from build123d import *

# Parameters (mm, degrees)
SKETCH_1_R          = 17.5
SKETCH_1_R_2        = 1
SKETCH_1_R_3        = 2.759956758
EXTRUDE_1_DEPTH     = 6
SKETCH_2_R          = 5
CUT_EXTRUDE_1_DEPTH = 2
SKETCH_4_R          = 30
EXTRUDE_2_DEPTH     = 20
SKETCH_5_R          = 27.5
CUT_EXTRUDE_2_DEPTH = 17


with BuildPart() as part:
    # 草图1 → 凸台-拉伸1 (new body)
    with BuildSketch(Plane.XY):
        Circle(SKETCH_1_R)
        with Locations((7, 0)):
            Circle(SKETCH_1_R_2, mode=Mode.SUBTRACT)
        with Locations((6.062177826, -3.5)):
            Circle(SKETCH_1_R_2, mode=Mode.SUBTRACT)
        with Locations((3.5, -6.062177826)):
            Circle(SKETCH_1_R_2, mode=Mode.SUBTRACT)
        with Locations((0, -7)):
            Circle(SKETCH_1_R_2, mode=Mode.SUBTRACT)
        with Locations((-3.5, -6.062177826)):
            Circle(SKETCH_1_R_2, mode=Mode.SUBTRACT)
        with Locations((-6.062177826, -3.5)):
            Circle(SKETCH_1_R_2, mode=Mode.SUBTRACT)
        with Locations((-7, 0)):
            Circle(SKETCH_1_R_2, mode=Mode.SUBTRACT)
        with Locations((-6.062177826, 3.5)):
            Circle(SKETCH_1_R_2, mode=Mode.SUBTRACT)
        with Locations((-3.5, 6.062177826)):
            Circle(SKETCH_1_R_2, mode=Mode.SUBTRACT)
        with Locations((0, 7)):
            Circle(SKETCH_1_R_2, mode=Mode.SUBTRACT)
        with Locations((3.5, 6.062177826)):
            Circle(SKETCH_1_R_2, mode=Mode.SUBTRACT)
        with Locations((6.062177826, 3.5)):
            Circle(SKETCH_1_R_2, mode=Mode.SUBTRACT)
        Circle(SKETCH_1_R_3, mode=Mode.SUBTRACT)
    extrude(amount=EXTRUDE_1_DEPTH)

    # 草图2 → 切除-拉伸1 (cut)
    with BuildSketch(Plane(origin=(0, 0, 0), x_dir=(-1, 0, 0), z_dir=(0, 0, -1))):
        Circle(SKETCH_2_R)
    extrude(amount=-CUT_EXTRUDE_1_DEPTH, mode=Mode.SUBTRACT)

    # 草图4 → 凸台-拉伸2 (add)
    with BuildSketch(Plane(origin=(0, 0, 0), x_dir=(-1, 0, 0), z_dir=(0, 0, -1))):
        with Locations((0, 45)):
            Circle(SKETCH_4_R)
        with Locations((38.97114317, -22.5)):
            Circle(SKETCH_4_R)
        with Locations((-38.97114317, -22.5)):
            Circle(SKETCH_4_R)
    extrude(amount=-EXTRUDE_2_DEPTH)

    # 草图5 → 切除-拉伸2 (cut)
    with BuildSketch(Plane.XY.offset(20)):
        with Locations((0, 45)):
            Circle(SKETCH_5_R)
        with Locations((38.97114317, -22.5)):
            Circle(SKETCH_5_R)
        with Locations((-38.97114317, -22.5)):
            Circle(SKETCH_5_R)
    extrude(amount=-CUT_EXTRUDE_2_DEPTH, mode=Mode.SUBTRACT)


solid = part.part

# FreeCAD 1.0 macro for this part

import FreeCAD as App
import Part
import Sketcher

V = App.Vector
Q = App.Units.Quantity

doc = App.newDocument("Part")
body = doc.addObject("PartDesign::Body", "Body")

# Sketch on XY plane
sketch1 = body.newObject("Sketcher::SketchObject", "Sketch")
sketch1.AttachmentSupport = (doc.getObject("XY_Plane"), [""])
sketch1.MapMode = "FlatFace"
sketch1.addGeometry([
    Part.Circle(V(0, 0, 0), V(0, 0, 1), 17.5),  # 0
    Part.Circle(V(-3.5, -6.1, 0), V(0, 0, 1), 1),  # 1
    Part.Circle(V(-6.1, -3.5, 0), V(0, 0, 1), 1),  # 2
    Part.Circle(V(-7, 0, 0), V(0, 0, 1), 1),  # 3
    Part.Circle(V(0, -7, 0), V(0, 0, 1), 1),  # 4
    Part.Circle(V(3.5, -6.1, 0), V(0, 0, 1), 1),  # 5
    Part.Circle(V(0, 0, 0), V(0, 0, 1), 2.8),  # 6
    Part.Circle(V(6.1, -3.5, 0), V(0, 0, 1), 1),  # 7
    Part.Circle(V(7, 0, 0), V(0, 0, 1), 1),  # 8
    Part.Circle(V(-6.1, 3.5, 0), V(0, 0, 1), 1),  # 9
    Part.Circle(V(-3.5, 6.1, 0), V(0, 0, 1), 1),  # 10
    Part.Circle(V(6.1, 3.5, 0), V(0, 0, 1), 1),  # 11
    Part.Circle(V(0, 7, 0), V(0, 0, 1), 1),  # 12
    Part.Circle(V(3.5, 6.1, 0), V(0, 0, 1), 1),  # 13
], False)
sketch1.addConstraint([
    Sketcher.Constraint("Coincident", 0, 3, -1, 1),
    Sketcher.Constraint("Coincident", 6, 3, -1, 1),
    Sketcher.Constraint("Equal", 1, 2),
    Sketcher.Constraint("Equal", 2, 3),
    Sketcher.Constraint("Equal", 3, 4),
    Sketcher.Constraint("Equal", 4, 5),
    Sketcher.Constraint("Equal", 5, 7),
    Sketcher.Constraint("Equal", 7, 8),
    Sketcher.Constraint("Equal", 8, 9),
    Sketcher.Constraint("Equal", 9, 10),
    Sketcher.Constraint("Equal", 10, 11),
    Sketcher.Constraint("Equal", 11, 12),
    Sketcher.Constraint("Equal", 12, 13),
    Sketcher.Constraint("Symmetric", 3, 3, 8, 3, -1, 1),
    Sketcher.Constraint("Symmetric", 7, 3, 9, 3, -1, 1),
    Sketcher.Constraint("Symmetric", 5, 3, 10, 3, -1, 1),
    Sketcher.Constraint("Symmetric", 2, 3, 11, 3, -1, 1),
    Sketcher.Constraint("Symmetric", 4, 3, 12, 3, -1, 1),
    Sketcher.Constraint("Symmetric", 1, 3, 13, 3, -1, 1),
    Sketcher.Constraint("Symmetric", 1, 3, 5, 3, -2),
    Sketcher.Constraint("Symmetric", 2, 3, 7, 3, -2),
    Sketcher.Constraint("PointOnObject", 3, 3, -1),
    Sketcher.Constraint("PointOnObject", 4, 3, -2),
    Sketcher.Constraint("Diameter", 0, Q("35 mm")),
    Sketcher.Constraint("Diameter", 1, Q("2 mm")),
    Sketcher.Constraint("DistanceX", 3, 3, -1, 1, Q("7 mm")),
    Sketcher.Constraint("DistanceY", 4, 3, -1, 1, Q("7 mm")),
    Sketcher.Constraint("DistanceX", 1, 3, 5, 3, Q("7 mm")),
    Sketcher.Constraint("DistanceY", 2, 3, 9, 3, Q("7 mm")),
    Sketcher.Constraint("Diameter", 6, Q("5.519914 mm")),
    Sketcher.Constraint("DistanceY", 1, 3, -1, 1, Q("6.062178 mm")),
    Sketcher.Constraint("DistanceX", 2, 3, -1, 1, Q("6.062178 mm")),
])
pad1 = body.newObject("PartDesign::Pad", "Pad")
pad1.Profile = sketch1
pad1.Length = 6

# Sketch on XY plane
sketch2 = body.newObject("Sketcher::SketchObject", "Sketch001")
sketch2.AttachmentSupport = (doc.getObject("XY_Plane"), [""])
sketch2.MapMode = "FlatFace"
sketch2.addGeometry(Part.Circle(V(0, 0, 0), V(0, 0, 1), 5), False)
sketch2.addConstraint([
    Sketcher.Constraint("Coincident", 0, 3, -1, 1),
    Sketcher.Constraint("Diameter", 0, Q("10 mm")),
])
pocket1 = body.newObject("PartDesign::Pocket", "Pocket")
pocket1.Profile = sketch2
pocket1.Length = 2
pocket1.Reversed = True

# Sketch on XY plane
sketch3 = body.newObject("Sketcher::SketchObject", "Sketch002")
sketch3.AttachmentSupport = (doc.getObject("XY_Plane"), [""])
sketch3.MapMode = "FlatFace"
sketch3.addGeometry([
    Part.Circle(V(0, 45, 0), V(0, 0, 1), 30),
    Part.Circle(V(-39, -22, 0), V(0, 0, 1), 30),
    Part.Circle(V(39, -22, 0), V(0, 0, 1), 30),
], False)
sketch3.addConstraint([
    Sketcher.Constraint("Equal", 0, 1),
    Sketcher.Constraint("Equal", 1, 2),
    Sketcher.Constraint("Symmetric", 1, 3, 2, 3, -2),
    Sketcher.Constraint("PointOnObject", 0, 3, -2),
    Sketcher.Constraint("Diameter", 0, Q("60 mm")),
    Sketcher.Constraint("DistanceY", -1, 1, 0, 3, Q("45 mm")),
    Sketcher.Constraint("DistanceY", 1, 3, -1, 1, Q("22.5 mm")),
    Sketcher.Constraint("DistanceX", 1, 3, -1, 1, Q("38.971143 mm")),
])
pad2 = body.newObject("PartDesign::Pad", "Pad001")
pad2.Profile = sketch3
pad2.Length = 20

# Sketch on XY plane
sketch4 = body.newObject("Sketcher::SketchObject", "Sketch003")
sketch4.AttachmentSupport = (doc.getObject("XY_Plane"), [""])
sketch4.MapMode = "FlatFace"
sketch4.AttachmentOffset = App.Placement(V(0, 0, 20), App.Rotation())
sketch4.addGeometry([
    Part.Circle(V(0, 45, 0), V(0, 0, 1), 28),
    Part.Circle(V(39, -22, 0), V(0, 0, 1), 28),
    Part.Circle(V(-39, -22, 0), V(0, 0, 1), 28),
], False)
sketch4.addConstraint([
    Sketcher.Constraint("Equal", 0, 1),
    Sketcher.Constraint("Equal", 1, 2),
    Sketcher.Constraint("Symmetric", 1, 3, 2, 3, -2),
    Sketcher.Constraint("PointOnObject", 0, 3, -2),
    Sketcher.Constraint("Diameter", 0, Q("55 mm")),
    Sketcher.Constraint("DistanceY", -1, 1, 0, 3, Q("45 mm")),
    Sketcher.Constraint("DistanceY", 1, 3, -1, 1, Q("22.5 mm")),
    Sketcher.Constraint("DistanceX", -1, 1, 1, 3, Q("38.971143 mm")),
])
pocket2 = body.newObject("PartDesign::Pocket", "Pocket001")
pocket2.Profile = sketch4
pocket2.Length = 17

doc.recompute()
